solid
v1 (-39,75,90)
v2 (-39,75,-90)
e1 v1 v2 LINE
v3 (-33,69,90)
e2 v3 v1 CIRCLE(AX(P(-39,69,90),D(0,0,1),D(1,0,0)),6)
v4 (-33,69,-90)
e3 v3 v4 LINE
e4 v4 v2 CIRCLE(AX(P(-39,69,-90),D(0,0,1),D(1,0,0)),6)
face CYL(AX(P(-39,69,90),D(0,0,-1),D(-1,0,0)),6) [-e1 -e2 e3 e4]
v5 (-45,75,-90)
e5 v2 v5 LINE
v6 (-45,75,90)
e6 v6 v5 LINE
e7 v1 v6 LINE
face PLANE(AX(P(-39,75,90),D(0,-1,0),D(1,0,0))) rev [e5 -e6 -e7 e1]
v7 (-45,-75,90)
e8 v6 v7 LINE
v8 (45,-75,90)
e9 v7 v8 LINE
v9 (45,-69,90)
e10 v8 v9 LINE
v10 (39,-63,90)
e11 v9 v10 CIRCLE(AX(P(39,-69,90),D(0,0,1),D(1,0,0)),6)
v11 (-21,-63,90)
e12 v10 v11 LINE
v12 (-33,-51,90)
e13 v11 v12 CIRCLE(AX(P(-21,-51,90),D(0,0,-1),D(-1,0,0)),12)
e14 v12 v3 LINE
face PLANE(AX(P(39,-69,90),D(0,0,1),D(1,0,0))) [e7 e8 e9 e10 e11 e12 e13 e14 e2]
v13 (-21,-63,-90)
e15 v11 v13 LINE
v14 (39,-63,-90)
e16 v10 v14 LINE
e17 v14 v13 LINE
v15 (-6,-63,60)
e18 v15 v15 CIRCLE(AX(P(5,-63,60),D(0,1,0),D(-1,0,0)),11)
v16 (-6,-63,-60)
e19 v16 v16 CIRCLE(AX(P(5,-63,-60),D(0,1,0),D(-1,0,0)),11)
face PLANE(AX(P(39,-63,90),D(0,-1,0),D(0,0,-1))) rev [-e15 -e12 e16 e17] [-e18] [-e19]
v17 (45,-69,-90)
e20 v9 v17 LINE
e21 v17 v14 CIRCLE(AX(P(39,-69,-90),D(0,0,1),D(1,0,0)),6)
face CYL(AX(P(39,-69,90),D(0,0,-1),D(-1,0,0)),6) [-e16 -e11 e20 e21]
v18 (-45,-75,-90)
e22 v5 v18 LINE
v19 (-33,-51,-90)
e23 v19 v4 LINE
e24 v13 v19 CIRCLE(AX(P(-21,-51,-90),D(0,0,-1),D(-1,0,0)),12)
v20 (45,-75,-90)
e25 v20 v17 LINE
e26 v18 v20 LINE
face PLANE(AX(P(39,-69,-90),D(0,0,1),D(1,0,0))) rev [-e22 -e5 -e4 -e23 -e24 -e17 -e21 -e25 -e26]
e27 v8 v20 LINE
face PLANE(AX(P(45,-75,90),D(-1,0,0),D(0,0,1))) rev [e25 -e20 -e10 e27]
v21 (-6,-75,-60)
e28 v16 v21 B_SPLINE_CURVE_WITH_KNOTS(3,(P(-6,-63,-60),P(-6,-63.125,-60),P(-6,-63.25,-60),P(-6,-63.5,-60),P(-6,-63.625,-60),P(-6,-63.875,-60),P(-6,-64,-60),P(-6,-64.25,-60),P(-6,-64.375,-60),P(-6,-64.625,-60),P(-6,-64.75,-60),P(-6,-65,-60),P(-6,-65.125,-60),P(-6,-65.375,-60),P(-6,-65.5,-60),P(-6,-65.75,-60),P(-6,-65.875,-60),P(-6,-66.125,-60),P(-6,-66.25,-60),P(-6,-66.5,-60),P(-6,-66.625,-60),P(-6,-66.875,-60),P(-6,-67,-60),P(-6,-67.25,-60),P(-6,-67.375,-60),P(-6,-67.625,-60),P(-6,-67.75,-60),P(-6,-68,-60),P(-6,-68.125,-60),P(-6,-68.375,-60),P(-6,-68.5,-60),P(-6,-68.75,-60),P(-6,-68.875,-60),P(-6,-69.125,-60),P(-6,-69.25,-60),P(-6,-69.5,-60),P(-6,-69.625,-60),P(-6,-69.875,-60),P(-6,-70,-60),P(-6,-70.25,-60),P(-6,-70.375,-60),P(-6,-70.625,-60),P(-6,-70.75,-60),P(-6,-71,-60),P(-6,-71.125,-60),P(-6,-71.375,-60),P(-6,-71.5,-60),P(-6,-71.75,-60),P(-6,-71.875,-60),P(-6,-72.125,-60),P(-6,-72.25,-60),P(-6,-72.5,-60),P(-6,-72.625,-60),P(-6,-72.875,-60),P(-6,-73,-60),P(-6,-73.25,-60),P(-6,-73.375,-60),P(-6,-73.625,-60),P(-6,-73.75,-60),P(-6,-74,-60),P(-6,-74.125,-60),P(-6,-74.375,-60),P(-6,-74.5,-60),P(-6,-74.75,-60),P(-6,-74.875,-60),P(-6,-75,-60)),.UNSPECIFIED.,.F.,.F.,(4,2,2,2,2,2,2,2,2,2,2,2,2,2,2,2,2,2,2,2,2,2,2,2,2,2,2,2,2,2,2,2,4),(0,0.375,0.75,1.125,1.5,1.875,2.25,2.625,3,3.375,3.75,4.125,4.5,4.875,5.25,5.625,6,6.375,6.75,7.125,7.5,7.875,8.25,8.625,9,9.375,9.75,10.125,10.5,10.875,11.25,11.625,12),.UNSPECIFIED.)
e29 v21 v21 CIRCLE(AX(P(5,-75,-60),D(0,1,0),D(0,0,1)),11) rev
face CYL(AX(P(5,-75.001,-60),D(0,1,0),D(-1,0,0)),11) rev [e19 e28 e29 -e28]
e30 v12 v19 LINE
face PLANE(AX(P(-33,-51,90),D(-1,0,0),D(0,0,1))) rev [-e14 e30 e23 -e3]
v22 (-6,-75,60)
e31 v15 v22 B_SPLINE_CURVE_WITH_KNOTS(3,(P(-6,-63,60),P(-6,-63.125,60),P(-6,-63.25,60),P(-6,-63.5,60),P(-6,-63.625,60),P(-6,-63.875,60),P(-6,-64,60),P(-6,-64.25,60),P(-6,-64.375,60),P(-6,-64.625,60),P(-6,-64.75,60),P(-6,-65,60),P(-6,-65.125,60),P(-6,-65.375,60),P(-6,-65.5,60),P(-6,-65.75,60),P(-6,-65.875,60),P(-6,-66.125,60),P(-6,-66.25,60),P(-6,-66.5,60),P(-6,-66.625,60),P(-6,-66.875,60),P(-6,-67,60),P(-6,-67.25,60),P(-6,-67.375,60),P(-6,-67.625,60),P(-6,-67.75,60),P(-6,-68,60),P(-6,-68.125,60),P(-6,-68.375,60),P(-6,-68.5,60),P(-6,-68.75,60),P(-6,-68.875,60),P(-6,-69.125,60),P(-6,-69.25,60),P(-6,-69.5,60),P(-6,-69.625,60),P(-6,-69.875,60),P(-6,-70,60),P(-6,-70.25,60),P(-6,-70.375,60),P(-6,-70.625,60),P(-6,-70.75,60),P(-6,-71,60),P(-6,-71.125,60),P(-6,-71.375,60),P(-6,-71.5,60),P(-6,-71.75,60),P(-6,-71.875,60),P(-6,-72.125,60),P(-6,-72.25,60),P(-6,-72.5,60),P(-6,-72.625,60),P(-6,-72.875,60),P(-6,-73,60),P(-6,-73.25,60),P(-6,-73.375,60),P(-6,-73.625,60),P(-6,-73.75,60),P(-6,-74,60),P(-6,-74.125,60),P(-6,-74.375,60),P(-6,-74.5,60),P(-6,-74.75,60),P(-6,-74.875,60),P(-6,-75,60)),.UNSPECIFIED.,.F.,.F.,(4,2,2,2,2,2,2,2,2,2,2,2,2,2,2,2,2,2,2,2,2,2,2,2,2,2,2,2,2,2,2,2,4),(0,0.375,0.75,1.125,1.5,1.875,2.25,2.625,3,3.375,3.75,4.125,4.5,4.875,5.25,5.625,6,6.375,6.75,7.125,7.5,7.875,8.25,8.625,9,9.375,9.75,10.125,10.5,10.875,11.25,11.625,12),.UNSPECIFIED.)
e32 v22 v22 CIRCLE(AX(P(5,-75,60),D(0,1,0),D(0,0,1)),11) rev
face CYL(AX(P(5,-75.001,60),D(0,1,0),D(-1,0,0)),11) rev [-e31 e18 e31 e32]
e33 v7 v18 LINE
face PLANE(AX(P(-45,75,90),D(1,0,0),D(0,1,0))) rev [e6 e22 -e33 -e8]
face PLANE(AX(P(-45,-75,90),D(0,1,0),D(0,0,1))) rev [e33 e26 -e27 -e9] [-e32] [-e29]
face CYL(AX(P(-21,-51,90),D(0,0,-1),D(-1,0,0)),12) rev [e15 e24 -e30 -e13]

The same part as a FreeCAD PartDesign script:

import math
import FreeCAD as App
import Part
import Sketcher
Q = App.Units.Quantity

doc = App.newDocument("Part")
body = doc.addObject("PartDesign::Body", "Body")

# Sketch on XY plane
sketch1 = body.newObject("Sketcher::SketchObject", "Sketch")
sketch1.AttachmentSupport = (doc.getObject("XY_Plane"), [""])
sketch1.MapMode = "FlatFace"
sketch1.addGeometry(Part.LineSegment(App.Vector(-45, 75, 0), App.Vector(-45, -75, 0)), False)
sketch1.addGeometry(Part.LineSegment(App.Vector(-45, -75, 0), App.Vector(45, -75, 0)), False)
sketch1.addGeometry(Part.LineSegment(App.Vector(45, -75, 0), App.Vector(45, -69, 0)), False)
sketch1.addGeometry(Part.ArcOfCircle(Part.Circle(App.Vector(39, -69, 0), App.Vector(0, 0, 1), 6), math.radians(0), math.radians(90)), False)
sketch1.addGeometry(Part.LineSegment(App.Vector(39, -63, 0), App.Vector(-21, -63, 0)), False)
sketch1.addGeometry(Part.ArcOfCircle(Part.Circle(App.Vector(-21, -51, 0), App.Vector(0, 0, 1), 12), math.radians(-180), math.radians(-90)), False)
sketch1.addGeometry(Part.LineSegment(App.Vector(-33, -51, 0), App.Vector(-33, 69, 0)), False)
sketch1.addGeometry(Part.ArcOfCircle(Part.Circle(App.Vector(-39, 69, 0), App.Vector(0, 0, 1), 6), math.radians(0), math.radians(90)), False)
sketch1.addGeometry(Part.LineSegment(App.Vector(-39, 75, 0), App.Vector(-45, 75, 0)), False)
sketch1.addConstraint(Sketcher.Constraint("Coincident", 0, 2, 1, 1))
sketch1.addConstraint(Sketcher.Constraint("Coincident", 1, 2, 2, 1))
sketch1.addConstraint(Sketcher.Constraint("Tangent", 2, 2, 3, 1))
sketch1.addConstraint(Sketcher.Constraint("Tangent", 3, 2, 4, 1))
sketch1.addConstraint(Sketcher.Constraint("Tangent", 4, 2, 5, 2))
sketch1.addConstraint(Sketcher.Constraint("Tangent", 5, 1, 6, 1))
sketch1.addConstraint(Sketcher.Constraint("Tangent", 6, 2, 7, 1))
sketch1.addConstraint(Sketcher.Constraint("Tangent", 7, 2, 8, 1))
sketch1.addConstraint(Sketcher.Constraint("Coincident", 8, 2, 0, 1))
sketch1.addConstraint(Sketcher.Constraint("Vertical", 0))
sketch1.addConstraint(Sketcher.Constraint("Horizontal", 1))
sketch1.addConstraint(Sketcher.Constraint("Vertical", 2))
sketch1.addConstraint(Sketcher.Constraint("Horizontal", 4))
sketch1.addConstraint(Sketcher.Constraint("Vertical", 6))
sketch1.addConstraint(Sketcher.Constraint("Horizontal", 8))
sketch1.addConstraint(Sketcher.Constraint("Equal", 3, 7))
sketch1.addConstraint(Sketcher.Constraint("Symmetric", 3, 3, 7, 3, -1, 1))
sketch1.addConstraint(Sketcher.Constraint("Symmetric", 1, 2, 8, 2, -1, 1))
sketch1.addConstraint(Sketcher.Constraint("Radius", 3, Q("6 mm")))
sketch1.addConstraint(Sketcher.Constraint("Radius", 5, Q("12 mm")))
sketch1.addConstraint(Sketcher.Constraint("DistanceX", 1, 1, 1, 2, Q("90 mm")))
sketch1.addConstraint(Sketcher.Constraint("DistanceY", 0, 2, 0, 1, Q("150 mm")))
pad1 = body.newObject("PartDesign::Pad", "Pad")
pad1.Profile = sketch1
pad1.Length = 180
pad1.Midplane = True

# Sketch on XZ plane
sketch2 = body.newObject("Sketcher::SketchObject", "Sketch001")
sketch2.AttachmentSupport = (doc.getObject("XZ_Plane"), [""])
sketch2.MapMode = "FlatFace"
sketch2.AttachmentOffset = App.Placement(App.Vector(0, 0, 63), App.Rotation())
sketch2.addGeometry(Part.Circle(App.Vector(5, 60, 0), App.Vector(0, 0, 1), 11), False)
sketch2.addConstraint(Sketcher.Constraint("Diameter", 0, Q("22 mm")))
sketch2.addConstraint(Sketcher.Constraint("DistanceX", -1, 1, 0, 3, Q("5 mm")))
sketch2.addConstraint(Sketcher.Constraint("DistanceY", -1, 1, 0, 3, Q("60 mm")))
pocket1 = body.newObject("PartDesign::Pocket", "Pocket")
pocket1.Profile = sketch2
pocket1.Type = "UpToFirst"
pocket1.Reversed = True

# Sketch on XZ plane
sketch3 = body.newObject("Sketcher::SketchObject", "Sketch002")
sketch3.AttachmentSupport = (doc.getObject("XZ_Plane"), [""])
sketch3.MapMode = "FlatFace"
sketch3.AttachmentOffset = App.Placement(App.Vector(0, 0, 63), App.Rotation())
sketch3.addGeometry(Part.Circle(App.Vector(5, -60, 0), App.Vector(0, 0, 1), 11), False)
sketch3.addConstraint(Sketcher.Constraint("Diameter", 0, Q("22 mm")))
sketch3.addConstraint(Sketcher.Constraint("DistanceX", -1, 1, 0, 3, Q("5 mm")))
sketch3.addConstraint(Sketcher.Constraint("DistanceY", 0, 3, -1, 1, Q("60 mm")))
pocket2 = body.newObject("PartDesign::Pocket", "Pocket001")
pocket2.Profile = sketch3
pocket2.Type = "UpToFirst"
pocket2.Reversed = True

doc.recompute()
